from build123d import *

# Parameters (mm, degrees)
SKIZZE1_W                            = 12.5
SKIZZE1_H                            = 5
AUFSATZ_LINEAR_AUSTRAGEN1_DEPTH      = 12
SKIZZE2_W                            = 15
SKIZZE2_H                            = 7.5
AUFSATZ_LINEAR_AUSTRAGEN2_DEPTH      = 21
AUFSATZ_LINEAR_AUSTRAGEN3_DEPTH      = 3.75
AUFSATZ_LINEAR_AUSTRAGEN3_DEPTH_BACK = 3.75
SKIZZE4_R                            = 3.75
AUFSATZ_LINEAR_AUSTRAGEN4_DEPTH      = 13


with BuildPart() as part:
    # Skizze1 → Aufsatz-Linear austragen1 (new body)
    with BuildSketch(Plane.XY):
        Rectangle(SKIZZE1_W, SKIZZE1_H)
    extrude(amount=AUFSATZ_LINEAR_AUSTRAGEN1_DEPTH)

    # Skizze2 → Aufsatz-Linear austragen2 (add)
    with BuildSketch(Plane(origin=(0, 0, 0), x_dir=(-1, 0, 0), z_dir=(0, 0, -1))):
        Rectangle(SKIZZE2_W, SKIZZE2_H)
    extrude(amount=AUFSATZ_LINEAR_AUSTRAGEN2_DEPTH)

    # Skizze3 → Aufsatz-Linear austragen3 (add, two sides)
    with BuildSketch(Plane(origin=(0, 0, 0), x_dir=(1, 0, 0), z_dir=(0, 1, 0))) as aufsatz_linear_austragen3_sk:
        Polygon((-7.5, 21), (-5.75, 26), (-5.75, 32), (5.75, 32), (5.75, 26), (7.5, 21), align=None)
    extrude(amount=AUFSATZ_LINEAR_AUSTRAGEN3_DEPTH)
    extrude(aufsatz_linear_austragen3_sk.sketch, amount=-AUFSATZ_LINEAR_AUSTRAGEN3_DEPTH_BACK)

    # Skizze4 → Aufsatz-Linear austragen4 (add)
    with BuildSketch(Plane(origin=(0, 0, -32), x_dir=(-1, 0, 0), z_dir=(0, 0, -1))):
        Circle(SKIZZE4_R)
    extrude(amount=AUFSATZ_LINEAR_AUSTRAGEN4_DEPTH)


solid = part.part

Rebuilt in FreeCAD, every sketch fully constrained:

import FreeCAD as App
import Part
import Sketcher

V = App.Vector
Q = App.Units.Quantity

doc = App.newDocument("Part")
body = doc.addObject("PartDesign::Body", "Body")

# Sketch on XY plane
sketch1 = body.newObject("Sketcher::SketchObject", "Sketch")
sketch1.AttachmentSupport = (doc.getObject("XY_Plane"), [""])
sketch1.MapMode = "FlatFace"
sketch1.addGeometry([
    Part.LineSegment(V(-6.25, 2.5, 0), V(-6.25, -2.5, 0)),
    Part.LineSegment(V(-6.25, -2.5, 0), V(6.25, -2.5, 0)),
    Part.LineSegment(V(6.25, -2.5, 0), V(6.25, 2.5, 0)),
    Part.LineSegment(V(6.25, 2.5, 0), V(-6.25, 2.5, 0)),
], False)
sketch1.addConstraint([
    Sketcher.Constraint("Coincident", 0, 2, 1, 1),
    Sketcher.Constraint("Coincident", 1, 2, 2, 1),
    Sketcher.Constraint("Coincident", 2, 2, 3, 1),
    Sketcher.Constraint("Coincident", 3, 2, 0, 1),
    Sketcher.Constraint("Vertical", 0),
    Sketcher.Constraint("Horizontal", 1),
    Sketcher.Constraint("Vertical", 2),
    Sketcher.Constraint("Horizontal", 3),
    Sketcher.Constraint("Symmetric", 0, 2, 2, 2, -1, 1),
    Sketcher.Constraint("DistanceY", 0, 2, 0, 1, Q("5 mm")),
    Sketcher.Constraint("DistanceX", 1, 1, 1, 2, Q("12.5 mm")),
])
pad1 = body.newObject("PartDesign::Pad", "Pad")
pad1.Profile = sketch1
pad1.Length = 12

# Sketch on XY plane
sketch2 = body.newObject("Sketcher::SketchObject", "Sketch001")
sketch2.AttachmentSupport = (doc.getObject("XY_Plane"), [""])
sketch2.MapMode = "FlatFace"
sketch2.addGeometry([
    Part.LineSegment(V(7.5, 3.75, 0), V(7.5, -3.75, 0)),
    Part.LineSegment(V(7.5, -3.75, 0), V(-7.5, -3.75, 0)),
    Part.LineSegment(V(-7.5, -3.75, 0), V(-7.5, 3.75, 0)),
    Part.LineSegment(V(-7.5, 3.75, 0), V(7.5, 3.75, 0)),
], False)
sketch2.addConstraint([
    Sketcher.Constraint("Coincident", 0, 2, 1, 1),
    Sketcher.Constraint("Coincident", 1, 2, 2, 1),
    Sketcher.Constraint("Coincident", 2, 2, 3, 1),
    Sketcher.Constraint("Coincident", 3, 2, 0, 1),
    Sketcher.Constraint("Vertical", 0),
    Sketcher.Constraint("Horizontal", 1),
    Sketcher.Constraint("Vertical", 2),
    Sketcher.Constraint("Horizontal", 3),
    Sketcher.Constraint("Symmetric", 0, 2, 2, 2, -1, 1),
    Sketcher.Constraint("DistanceX", 1, 2, 1, 1, Q("15 mm")),
    Sketcher.Constraint("DistanceY", 0, 2, 0, 1, Q("7.5 mm")),
])
pad2 = body.newObject("PartDesign::Pad", "Pad001")
pad2.Profile = sketch2
pad2.Length = 21
pad2.Reversed = True

# Sketch on XZ plane
sketch3 = body.newObject("Sketcher::SketchObject", "Sketch002")
sketch3.AttachmentSupport = (doc.getObject("XZ_Plane"), [""])
sketch3.MapMode = "FlatFace"
sketch3.addGeometry([
    Part.LineSegment(V(-5.75, -26, 0), V(-7.5, -21, 0)),  # 0
    Part.LineSegment(V(-7.5, -21, 0), V(7.5, -21, 0)),  # 1
    Part.LineSegment(V(7.5, -21, 0), V(5.75, -26, 0)),  # 2
    Part.LineSegment(V(5.75, -26, 0), V(5.75, -32, 0)),  # 3
    Part.LineSegment(V(5.75, -32, 0), V(-5.75, -32, 0)),  # 4
    Part.LineSegment(V(-5.75, -32, 0), V(-5.75, -26, 0)),  # 5
], False)
sketch3.addConstraint([
    Sketcher.Constraint("Coincident", 0, 2, 1, 1),
    Sketcher.Constraint("Coincident", 1, 2, 2, 1),
    Sketcher.Constraint("Coincident", 2, 2, 3, 1),
    Sketcher.Constraint("Coincident", 3, 2, 4, 1),
    Sketcher.Constraint("Coincident", 4, 2, 5, 1),
    Sketcher.Constraint("Coincident", 5, 2, 0, 1),
    Sketcher.Constraint("Horizontal", 1),
    Sketcher.Constraint("Vertical", 3),
    Sketcher.Constraint("Horizontal", 4),
    Sketcher.Constraint("Vertical", 5),
    Sketcher.Constraint("Symmetric", 2, 2, 5, 2, -2),
    Sketcher.Constraint("Equal", 0, 2),
    Sketcher.Constraint("DistanceX", 1, 1, 1, 2, Q("15 mm")),
    Sketcher.Constraint("DistanceY", 3, 2, 3, 1, Q("6 mm")),
    Sketcher.Constraint("DistanceX", 4, 2, 4, 1, Q("11.5 mm")),
    Sketcher.Constraint("DistanceY", 0, 2, -1, 1, Q("21 mm")),
    Sketcher.Constraint("DistanceY", 2, 2, -1, 1, Q("26 mm")),
])
pad3 = body.newObject("PartDesign::Pad", "Pad002")
pad3.Profile = sketch3
pad3.Type = "TwoLengths"
pad3.Length = 3.75
pad3.Length2 = 3.75
pad3.Reversed = True

# Sketch on XY plane
sketch4 = body.newObject("Sketcher::SketchObject", "Sketch003")
sketch4.AttachmentSupport = (doc.getObject("XY_Plane"), [""])
sketch4.MapMode = "FlatFace"
sketch4.AttachmentOffset = App.Placement(V(0, 0, -32), App.Rotation())
sketch4.addGeometry(Part.Circle(V(0, 0, 0), V(0, 0, 1), 3.75), False)
sketch4.addConstraint([
    Sketcher.Constraint("Coincident", 0, 3, -1, 1),
    Sketcher.Constraint("Diameter", 0, Q("7.5 mm")),
])
pad4 = body.newObject("PartDesign::Pad", "Pad003")
pad4.Profile = sketch4
pad4.Length = 13
pad4.Reversed = True

doc.recompute()
